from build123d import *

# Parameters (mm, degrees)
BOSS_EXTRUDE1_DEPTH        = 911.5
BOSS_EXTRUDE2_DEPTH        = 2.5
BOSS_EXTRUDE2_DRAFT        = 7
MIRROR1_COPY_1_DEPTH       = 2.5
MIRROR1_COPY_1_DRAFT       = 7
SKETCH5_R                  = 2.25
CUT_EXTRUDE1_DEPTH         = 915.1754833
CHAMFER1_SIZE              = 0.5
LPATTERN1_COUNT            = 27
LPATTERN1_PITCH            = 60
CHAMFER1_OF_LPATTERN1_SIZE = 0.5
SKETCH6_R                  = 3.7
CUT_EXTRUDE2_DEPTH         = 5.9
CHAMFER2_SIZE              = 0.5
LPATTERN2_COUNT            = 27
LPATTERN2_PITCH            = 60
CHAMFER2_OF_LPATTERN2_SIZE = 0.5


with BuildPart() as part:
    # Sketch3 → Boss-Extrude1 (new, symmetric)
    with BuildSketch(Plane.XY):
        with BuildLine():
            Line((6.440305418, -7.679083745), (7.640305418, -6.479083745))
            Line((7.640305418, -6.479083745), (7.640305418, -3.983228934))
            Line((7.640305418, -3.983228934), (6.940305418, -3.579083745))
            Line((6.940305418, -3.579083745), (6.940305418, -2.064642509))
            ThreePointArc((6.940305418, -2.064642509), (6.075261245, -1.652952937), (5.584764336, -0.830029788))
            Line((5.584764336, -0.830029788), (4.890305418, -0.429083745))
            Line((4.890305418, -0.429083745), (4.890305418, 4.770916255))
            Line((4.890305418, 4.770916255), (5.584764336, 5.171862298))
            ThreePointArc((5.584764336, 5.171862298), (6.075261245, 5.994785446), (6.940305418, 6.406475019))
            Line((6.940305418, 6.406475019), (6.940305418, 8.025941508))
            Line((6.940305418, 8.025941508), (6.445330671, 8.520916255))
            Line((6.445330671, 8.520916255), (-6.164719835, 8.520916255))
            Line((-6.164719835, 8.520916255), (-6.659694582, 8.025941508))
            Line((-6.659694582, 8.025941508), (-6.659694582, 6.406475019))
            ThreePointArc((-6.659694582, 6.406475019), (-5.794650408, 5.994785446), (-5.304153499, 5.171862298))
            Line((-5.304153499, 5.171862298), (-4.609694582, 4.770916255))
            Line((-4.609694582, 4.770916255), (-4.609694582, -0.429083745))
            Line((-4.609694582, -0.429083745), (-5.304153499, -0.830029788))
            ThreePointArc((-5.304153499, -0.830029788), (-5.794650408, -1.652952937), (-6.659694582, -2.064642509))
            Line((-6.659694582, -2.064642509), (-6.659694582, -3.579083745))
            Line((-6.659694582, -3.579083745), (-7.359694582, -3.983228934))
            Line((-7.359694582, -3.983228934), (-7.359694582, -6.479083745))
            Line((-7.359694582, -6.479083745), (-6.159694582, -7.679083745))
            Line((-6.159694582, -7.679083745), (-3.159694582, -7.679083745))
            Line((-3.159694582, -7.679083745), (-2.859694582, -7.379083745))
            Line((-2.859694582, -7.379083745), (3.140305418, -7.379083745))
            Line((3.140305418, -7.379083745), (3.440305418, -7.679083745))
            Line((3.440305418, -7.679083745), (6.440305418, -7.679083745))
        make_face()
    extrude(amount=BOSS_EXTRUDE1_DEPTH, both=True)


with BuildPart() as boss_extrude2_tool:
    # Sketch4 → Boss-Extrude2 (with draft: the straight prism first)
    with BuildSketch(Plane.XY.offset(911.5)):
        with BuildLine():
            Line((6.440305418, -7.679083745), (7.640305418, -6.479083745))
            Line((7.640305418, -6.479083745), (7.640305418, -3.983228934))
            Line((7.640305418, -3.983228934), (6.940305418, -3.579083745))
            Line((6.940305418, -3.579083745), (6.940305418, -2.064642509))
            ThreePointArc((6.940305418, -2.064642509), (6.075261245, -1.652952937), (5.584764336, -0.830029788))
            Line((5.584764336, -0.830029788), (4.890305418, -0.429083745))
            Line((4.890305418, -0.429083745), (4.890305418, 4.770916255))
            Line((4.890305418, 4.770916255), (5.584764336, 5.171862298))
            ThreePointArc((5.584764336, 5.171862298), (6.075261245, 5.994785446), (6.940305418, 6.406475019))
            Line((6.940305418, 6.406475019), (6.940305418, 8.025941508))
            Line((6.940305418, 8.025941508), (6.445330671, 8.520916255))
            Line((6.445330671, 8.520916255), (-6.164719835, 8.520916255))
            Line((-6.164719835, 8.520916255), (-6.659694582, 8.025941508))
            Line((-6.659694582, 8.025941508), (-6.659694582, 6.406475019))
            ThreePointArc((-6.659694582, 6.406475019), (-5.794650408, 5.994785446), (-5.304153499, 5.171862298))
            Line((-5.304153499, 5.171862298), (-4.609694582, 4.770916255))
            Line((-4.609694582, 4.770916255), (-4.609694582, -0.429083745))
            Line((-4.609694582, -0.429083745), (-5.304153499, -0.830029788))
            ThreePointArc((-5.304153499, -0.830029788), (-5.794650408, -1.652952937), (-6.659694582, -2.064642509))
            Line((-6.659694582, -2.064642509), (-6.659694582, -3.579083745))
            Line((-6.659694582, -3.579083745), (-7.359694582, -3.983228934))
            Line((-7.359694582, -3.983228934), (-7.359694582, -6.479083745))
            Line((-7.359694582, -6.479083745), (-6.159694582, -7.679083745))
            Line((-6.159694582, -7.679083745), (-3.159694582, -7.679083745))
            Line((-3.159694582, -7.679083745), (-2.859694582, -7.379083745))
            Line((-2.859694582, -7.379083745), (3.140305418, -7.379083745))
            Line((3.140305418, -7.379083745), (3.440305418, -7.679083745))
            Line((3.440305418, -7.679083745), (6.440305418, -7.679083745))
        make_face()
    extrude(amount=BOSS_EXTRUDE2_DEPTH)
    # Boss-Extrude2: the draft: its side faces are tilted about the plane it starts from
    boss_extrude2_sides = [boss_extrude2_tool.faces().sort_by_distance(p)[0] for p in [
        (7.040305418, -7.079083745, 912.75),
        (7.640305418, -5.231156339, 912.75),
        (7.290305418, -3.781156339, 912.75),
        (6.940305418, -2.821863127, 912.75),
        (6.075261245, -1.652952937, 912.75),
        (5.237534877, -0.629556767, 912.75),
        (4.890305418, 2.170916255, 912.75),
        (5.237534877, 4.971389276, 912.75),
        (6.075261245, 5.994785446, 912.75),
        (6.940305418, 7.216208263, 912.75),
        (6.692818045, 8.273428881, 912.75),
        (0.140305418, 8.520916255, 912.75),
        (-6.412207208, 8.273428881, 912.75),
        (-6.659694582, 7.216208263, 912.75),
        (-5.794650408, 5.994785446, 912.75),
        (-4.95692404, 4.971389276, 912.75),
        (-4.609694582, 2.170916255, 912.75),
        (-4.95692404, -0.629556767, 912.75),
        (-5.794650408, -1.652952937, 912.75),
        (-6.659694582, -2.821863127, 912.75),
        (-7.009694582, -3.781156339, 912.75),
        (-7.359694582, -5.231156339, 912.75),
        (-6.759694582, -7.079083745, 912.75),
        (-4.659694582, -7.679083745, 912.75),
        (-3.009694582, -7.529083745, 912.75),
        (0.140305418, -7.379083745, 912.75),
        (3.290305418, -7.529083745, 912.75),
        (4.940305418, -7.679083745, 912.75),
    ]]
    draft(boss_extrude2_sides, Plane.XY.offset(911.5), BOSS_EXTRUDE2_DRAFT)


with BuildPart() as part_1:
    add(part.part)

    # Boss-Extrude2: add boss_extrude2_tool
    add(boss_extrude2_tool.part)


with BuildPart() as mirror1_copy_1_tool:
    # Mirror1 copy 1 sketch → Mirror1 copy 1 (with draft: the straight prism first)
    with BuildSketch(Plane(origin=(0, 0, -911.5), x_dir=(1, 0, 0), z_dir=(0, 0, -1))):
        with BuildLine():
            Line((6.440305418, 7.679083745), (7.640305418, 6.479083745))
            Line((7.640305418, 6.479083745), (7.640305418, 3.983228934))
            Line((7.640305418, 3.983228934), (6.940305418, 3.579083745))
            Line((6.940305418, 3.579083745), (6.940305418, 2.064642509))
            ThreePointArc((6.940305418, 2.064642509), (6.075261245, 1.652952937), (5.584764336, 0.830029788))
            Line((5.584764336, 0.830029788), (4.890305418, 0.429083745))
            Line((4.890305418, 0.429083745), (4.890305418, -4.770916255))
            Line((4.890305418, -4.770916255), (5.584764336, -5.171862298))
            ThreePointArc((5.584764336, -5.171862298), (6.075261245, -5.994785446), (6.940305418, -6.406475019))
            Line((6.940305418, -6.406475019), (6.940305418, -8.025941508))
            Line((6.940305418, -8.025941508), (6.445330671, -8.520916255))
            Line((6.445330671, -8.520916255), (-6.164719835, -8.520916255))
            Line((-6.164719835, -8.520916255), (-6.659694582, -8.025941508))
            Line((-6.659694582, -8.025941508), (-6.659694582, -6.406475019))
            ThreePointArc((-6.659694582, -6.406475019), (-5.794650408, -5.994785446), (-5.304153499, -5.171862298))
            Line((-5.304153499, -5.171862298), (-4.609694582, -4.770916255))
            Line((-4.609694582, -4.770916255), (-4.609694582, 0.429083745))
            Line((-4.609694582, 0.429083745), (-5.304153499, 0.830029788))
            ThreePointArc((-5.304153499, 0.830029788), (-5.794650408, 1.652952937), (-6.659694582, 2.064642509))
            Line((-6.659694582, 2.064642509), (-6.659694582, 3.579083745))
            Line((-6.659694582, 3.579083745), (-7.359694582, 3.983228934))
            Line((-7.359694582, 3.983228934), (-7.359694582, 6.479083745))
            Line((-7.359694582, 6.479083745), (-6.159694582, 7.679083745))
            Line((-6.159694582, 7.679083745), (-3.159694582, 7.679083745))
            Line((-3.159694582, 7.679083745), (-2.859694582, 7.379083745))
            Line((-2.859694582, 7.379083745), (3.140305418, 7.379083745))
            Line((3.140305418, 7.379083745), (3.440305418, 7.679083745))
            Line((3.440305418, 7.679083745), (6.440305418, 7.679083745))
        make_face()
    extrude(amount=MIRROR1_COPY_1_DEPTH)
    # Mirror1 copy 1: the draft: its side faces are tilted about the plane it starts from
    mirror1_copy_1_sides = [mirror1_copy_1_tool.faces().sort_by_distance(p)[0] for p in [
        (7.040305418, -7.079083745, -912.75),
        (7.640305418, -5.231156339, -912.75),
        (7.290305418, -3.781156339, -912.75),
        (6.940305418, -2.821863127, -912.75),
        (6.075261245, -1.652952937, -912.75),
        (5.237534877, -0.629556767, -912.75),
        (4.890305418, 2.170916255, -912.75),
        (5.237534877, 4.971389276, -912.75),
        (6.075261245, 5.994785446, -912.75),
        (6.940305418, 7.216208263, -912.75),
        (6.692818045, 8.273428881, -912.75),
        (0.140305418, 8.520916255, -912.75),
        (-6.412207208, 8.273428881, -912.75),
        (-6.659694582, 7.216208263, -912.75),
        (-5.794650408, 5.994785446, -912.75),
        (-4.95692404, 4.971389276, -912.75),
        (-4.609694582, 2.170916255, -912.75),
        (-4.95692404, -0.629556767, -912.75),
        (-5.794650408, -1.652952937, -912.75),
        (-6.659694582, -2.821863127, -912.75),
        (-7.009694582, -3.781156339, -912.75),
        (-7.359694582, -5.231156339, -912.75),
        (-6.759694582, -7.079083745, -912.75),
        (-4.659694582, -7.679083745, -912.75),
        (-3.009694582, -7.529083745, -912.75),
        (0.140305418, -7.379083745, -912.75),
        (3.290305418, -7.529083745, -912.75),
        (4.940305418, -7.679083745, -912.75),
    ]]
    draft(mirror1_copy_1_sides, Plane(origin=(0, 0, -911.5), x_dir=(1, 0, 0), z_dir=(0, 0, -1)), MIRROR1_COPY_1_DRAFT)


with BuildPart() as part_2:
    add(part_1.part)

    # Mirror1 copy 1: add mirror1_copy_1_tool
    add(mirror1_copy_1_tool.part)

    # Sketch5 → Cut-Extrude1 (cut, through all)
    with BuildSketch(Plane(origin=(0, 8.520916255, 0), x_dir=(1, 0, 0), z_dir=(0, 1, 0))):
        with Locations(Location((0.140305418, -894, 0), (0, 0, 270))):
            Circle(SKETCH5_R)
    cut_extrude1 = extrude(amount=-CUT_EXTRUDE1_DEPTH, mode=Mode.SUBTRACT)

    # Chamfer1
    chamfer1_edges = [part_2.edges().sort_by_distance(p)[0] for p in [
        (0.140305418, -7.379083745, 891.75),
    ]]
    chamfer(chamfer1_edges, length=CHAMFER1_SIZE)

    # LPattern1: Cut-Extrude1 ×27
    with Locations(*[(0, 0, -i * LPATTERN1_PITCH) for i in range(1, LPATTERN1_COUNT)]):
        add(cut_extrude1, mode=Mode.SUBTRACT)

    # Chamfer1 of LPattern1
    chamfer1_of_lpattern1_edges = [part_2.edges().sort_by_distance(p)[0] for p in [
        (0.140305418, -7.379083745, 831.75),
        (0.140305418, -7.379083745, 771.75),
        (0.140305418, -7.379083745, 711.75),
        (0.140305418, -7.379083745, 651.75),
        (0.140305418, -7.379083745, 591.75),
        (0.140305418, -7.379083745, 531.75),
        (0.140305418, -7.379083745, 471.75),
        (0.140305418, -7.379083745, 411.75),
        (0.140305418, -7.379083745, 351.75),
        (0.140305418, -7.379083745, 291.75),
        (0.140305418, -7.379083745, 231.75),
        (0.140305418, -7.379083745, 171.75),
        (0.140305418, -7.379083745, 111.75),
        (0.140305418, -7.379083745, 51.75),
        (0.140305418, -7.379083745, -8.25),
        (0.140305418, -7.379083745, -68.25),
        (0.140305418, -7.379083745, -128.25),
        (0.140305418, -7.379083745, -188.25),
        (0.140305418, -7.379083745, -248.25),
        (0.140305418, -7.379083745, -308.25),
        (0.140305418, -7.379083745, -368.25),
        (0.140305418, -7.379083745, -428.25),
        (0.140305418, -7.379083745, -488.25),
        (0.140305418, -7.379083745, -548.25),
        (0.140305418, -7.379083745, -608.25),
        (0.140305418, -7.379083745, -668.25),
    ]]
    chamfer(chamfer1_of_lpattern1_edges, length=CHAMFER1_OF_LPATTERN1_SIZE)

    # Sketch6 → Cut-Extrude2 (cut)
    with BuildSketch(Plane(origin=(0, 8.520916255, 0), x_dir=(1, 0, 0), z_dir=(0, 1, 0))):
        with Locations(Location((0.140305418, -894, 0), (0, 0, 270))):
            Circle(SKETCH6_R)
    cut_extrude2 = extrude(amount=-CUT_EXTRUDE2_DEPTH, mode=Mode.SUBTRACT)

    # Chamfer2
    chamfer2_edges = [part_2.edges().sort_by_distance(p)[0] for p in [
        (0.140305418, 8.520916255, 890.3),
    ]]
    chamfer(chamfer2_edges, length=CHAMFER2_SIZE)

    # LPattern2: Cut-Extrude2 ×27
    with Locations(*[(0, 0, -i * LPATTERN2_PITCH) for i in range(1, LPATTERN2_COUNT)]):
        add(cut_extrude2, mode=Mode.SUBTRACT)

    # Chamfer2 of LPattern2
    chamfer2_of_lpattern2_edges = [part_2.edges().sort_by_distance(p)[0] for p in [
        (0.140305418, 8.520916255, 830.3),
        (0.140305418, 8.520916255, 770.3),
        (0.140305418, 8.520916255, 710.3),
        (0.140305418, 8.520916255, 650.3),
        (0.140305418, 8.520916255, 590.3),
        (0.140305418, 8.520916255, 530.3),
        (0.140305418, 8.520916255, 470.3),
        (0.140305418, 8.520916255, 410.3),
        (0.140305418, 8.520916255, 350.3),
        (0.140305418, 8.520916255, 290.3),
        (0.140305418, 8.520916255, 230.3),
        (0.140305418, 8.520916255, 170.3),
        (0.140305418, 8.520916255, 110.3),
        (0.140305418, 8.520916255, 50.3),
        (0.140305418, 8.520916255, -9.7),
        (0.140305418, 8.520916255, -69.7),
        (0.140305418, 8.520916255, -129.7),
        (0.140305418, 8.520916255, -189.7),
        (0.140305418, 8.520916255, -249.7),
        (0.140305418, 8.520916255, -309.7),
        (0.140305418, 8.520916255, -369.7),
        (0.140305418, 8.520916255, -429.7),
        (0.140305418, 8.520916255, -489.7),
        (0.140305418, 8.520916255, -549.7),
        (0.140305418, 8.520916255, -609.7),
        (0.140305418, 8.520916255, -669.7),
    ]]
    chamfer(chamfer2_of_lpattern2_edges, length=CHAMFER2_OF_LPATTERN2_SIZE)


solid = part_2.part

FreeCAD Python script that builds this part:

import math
import FreeCAD as App
import Part
import Sketcher
Q = App.Units.Quantity


def edges_at(feature, points):
    """Names of the edges that pass closest to the given points."""
    edges = feature.Shape.Edges
    near = lambda p: min(range(len(edges)), key=lambda i: edges[i].distToShape(Part.Vertex(*p))[0])
    return sorted({f"Edge{near(p) + 1}" for p in points})


def faces_at(feature, points):
    """Names of the faces that lie closest to the given points."""
    faces = feature.Shape.Faces
    near = lambda p: min(range(len(faces)), key=lambda i: faces[i].distToShape(Part.Vertex(*p))[0])
    return sorted({f"Face{near(p) + 1}" for p in points})

doc = App.newDocument("Part")
body = doc.addObject("PartDesign::Body", "Body")

sketch1 = body.newObject("Sketcher::SketchObject", "Sketch")
sketch1.AttachmentSupport = (doc.getObject("XY_Plane"), [""])
sketch1.MapMode = "FlatFace"
sketch1.addGeometry([
    Part.LineSegment(App.Vector(6.44, -7.68, 0), App.Vector(7.64, -6.48, 0)),
    Part.LineSegment(App.Vector(7.64, -6.48, 0), App.Vector(7.64, -3.98, 0)),
    Part.LineSegment(App.Vector(7.64, -3.98, 0), App.Vector(6.94, -3.58, 0)),
    Part.LineSegment(App.Vector(6.94, -3.58, 0), App.Vector(6.94, -2.06, 0)),
    Part.ArcOfCircle(Part.Circle(App.Vector(7.19, -0.43, 0), App.Vector(0, 0, 1), 1.65), math.radians(-166), math.radians(-99)),
    Part.LineSegment(App.Vector(5.58, -0.83, 0), App.Vector(4.89, -0.43, 0)),
    Part.LineSegment(App.Vector(4.89, -0.43, 0), App.Vector(4.89, 4.77, 0)),
    Part.LineSegment(App.Vector(4.89, 4.77, 0), App.Vector(5.58, 5.17, 0)),
    Part.ArcOfCircle(Part.Circle(App.Vector(7.19, 4.77, 0), App.Vector(0, 0, 1), 1.65), math.radians(99), math.radians(166)),
    Part.LineSegment(App.Vector(6.94, 6.41, 0), App.Vector(6.94, 8.03, 0)),
    Part.LineSegment(App.Vector(6.94, 8.03, 0), App.Vector(6.45, 8.52, 0)),
    Part.LineSegment(App.Vector(6.45, 8.52, 0), App.Vector(-6.16, 8.52, 0)),
    Part.LineSegment(App.Vector(-6.16, 8.52, 0), App.Vector(-6.66, 8.03, 0)),
    Part.LineSegment(App.Vector(-6.66, 8.03, 0), App.Vector(-6.66, 6.41, 0)),
    Part.ArcOfCircle(Part.Circle(App.Vector(-6.91, 4.77, 0), App.Vector(0, 0, 1), 1.65), math.radians(14), math.radians(81)),
    Part.LineSegment(App.Vector(-5.3, 5.17, 0), App.Vector(-4.61, 4.77, 0)),
    Part.LineSegment(App.Vector(-4.61, 4.77, 0), App.Vector(-4.61, -0.43, 0)),
    Part.LineSegment(App.Vector(-4.61, -0.43, 0), App.Vector(-5.3, -0.83, 0)),
    Part.ArcOfCircle(Part.Circle(App.Vector(-6.91, -0.43, 0), App.Vector(0, 0, 1), 1.65), math.radians(-81), math.radians(-14)),
    Part.LineSegment(App.Vector(-6.66, -2.06, 0), App.Vector(-6.66, -3.58, 0)),
    Part.LineSegment(App.Vector(-6.66, -3.58, 0), App.Vector(-7.36, -3.98, 0)),
    Part.LineSegment(App.Vector(-7.36, -3.98, 0), App.Vector(-7.36, -6.48, 0)),
    Part.LineSegment(App.Vector(-7.36, -6.48, 0), App.Vector(-6.16, -7.68, 0)),
    Part.LineSegment(App.Vector(-6.16, -7.68, 0), App.Vector(-3.16, -7.68, 0)),
    Part.LineSegment(App.Vector(-3.16, -7.68, 0), App.Vector(-2.86, -7.38, 0)),
    Part.LineSegment(App.Vector(-2.86, -7.38, 0), App.Vector(3.14, -7.38, 0)),
    Part.LineSegment(App.Vector(3.14, -7.38, 0), App.Vector(3.44, -7.68, 0)),
    Part.LineSegment(App.Vector(3.44, -7.68, 0), App.Vector(6.44, -7.68, 0)),
], False)
sketch1.addConstraint([
    Sketcher.Constraint("Coincident", 0, 2, 1, 1),
    Sketcher.Constraint("Coincident", 1, 2, 2, 1),
    Sketcher.Constraint("Coincident", 2, 2, 3, 1),
    Sketcher.Constraint("Coincident", 3, 2, 4, 2),
    Sketcher.Constraint("Coincident", 4, 1, 5, 1),
    Sketcher.Constraint("Coincident", 5, 2, 6, 1),
    Sketcher.Constraint("Coincident", 6, 2, 7, 1),
    Sketcher.Constraint("Coincident", 7, 2, 8, 2),
    Sketcher.Constraint("Coincident", 8, 1, 9, 1),
    Sketcher.Constraint("Coincident", 9, 2, 10, 1),
    Sketcher.Constraint("Coincident", 10, 2, 11, 1),
    Sketcher.Constraint("Coincident", 11, 2, 12, 1),
    Sketcher.Constraint("Coincident", 12, 2, 13, 1),
    Sketcher.Constraint("Coincident", 13, 2, 14, 2),
    Sketcher.Constraint("Coincident", 14, 1, 15, 1),
    Sketcher.Constraint("Coincident", 15, 2, 16, 1),
    Sketcher.Constraint("Coincident", 16, 2, 17, 1),
    Sketcher.Constraint("Coincident", 17, 2, 18, 2),
    Sketcher.Constraint("Coincident", 18, 1, 19, 1),
    Sketcher.Constraint("Coincident", 19, 2, 20, 1),
    Sketcher.Constraint("Coincident", 20, 2, 21, 1),
    Sketcher.Constraint("Coincident", 21, 2, 22, 1),
    Sketcher.Constraint("Coincident", 22, 2, 23, 1),
    Sketcher.Constraint("Coincident", 23, 2, 24, 1),
    Sketcher.Constraint("Coincident", 24, 2, 25, 1),
    Sketcher.Constraint("Coincident", 25, 2, 26, 1),
    Sketcher.Constraint("Coincident", 26, 2, 27, 1),
    Sketcher.Constraint("Coincident", 27, 2, 0, 1),
    Sketcher.Constraint("Vertical", 1),
    Sketcher.Constraint("Vertical", 3),
    Sketcher.Constraint("Vertical", 6),
    Sketcher.Constraint("Vertical", 9),
    Sketcher.Constraint("Horizontal", 11),
    Sketcher.Constraint("Vertical", 13),
    Sketcher.Constraint("Vertical", 16),
    Sketcher.Constraint("Vertical", 19),
    Sketcher.Constraint("Vertical", 21),
    Sketcher.Constraint("Horizontal", 23),
    Sketcher.Constraint("Horizontal", 25),
    Sketcher.Constraint("Horizontal", 27),
    Sketcher.Constraint("Equal", 4, 8),
    Sketcher.Constraint("Equal", 8, 14),
    Sketcher.Constraint("Equal", 14, 18),
    Sketcher.Constraint("Parallel", 2, 5),
    Sketcher.Constraint("Perpendicular", 0, 10),
    Sketcher.Constraint("Perpendicular", 10, 12),
    Sketcher.Constraint("Parallel", 5, 15),
    Sketcher.Constraint("Parallel", 7, 17),
    Sketcher.Constraint("Parallel", 17, 20),
    Sketcher.Constraint("Perpendicular", 12, 22),
    Sketcher.Constraint("Perpendicular", 22, 24),
    Sketcher.Constraint("Perpendicular", 24, 26),
    Sketcher.Constraint("Horizontal", 8, 3, 14, 3),
    Sketcher.Constraint("Horizontal", 4, 3, 18, 3),
    Sketcher.Constraint("Horizontal", 9, 2, 12, 2),
    Sketcher.Constraint("Horizontal", 8, 1, 13, 2),
    Sketcher.Constraint("Horizontal", 7, 2, 14, 1),
    Sketcher.Constraint("Horizontal", 6, 2, 15, 2),
    Sketcher.Constraint("Horizontal", 5, 2, 16, 2),
    Sketcher.Constraint("Horizontal", 4, 1, 17, 2),
    Sketcher.Constraint("Horizontal", 3, 2, 18, 1),
    Sketcher.Constraint("Horizontal", 2, 2, 19, 2),
    Sketcher.Constraint("Horizontal", 1, 2, 20, 2),
    Sketcher.Constraint("Horizontal", 0, 2, 21, 2),
    Sketcher.Constraint("Horizontal", 23, 2, 26, 2),
    Sketcher.Constraint("Vertical", 4, 3, 8, 3),
    Sketcher.Constraint("Vertical", 14, 3, 18, 3),
    Sketcher.Constraint("Vertical", 4, 1, 7, 2),
    Sketcher.Constraint("Vertical", 3, 2, 8, 1),
    Sketcher.Constraint("Equal", 23, 27),
    Sketcher.Constraint("Equal", 10, 12),
    Sketcher.Constraint("DistanceX", 23, 1, 23, 2, 3.0),
    Sketcher.Constraint("DistanceX", 25, 1, 25, 2, 6.0),
    Sketcher.Constraint("Angle", 2, Q("150 deg")),
    Sketcher.Constraint("Radius", 4, 1.65),
    Sketcher.Constraint("DistanceY", 6, 1, 6, 2, 5.2),
    Sketcher.Constraint("Distance", 10, 0.7),
    Sketcher.Constraint("DistanceX", 2, 2, 1, 2, 0.7),
    Sketcher.Constraint("DistanceY", 0, 2, 2, 2, 2.9),
    Sketcher.Constraint("DistanceX", 21, 2, 22, 2, 1.2),
    Sketcher.Constraint("DistanceX", 23, 2, 24, 2, 0.3),
    Sketcher.Constraint("DistanceX", 5, 2, 3, 2, 2.05),
    Sketcher.Constraint("DistanceY", 2, 2, 5, 2, 3.15),
    Sketcher.Constraint("DistanceY", 6, 2, 10, 2, 3.75),
    Sketcher.Constraint("DistanceY", 4, 3, 8, 3, 5.208),
    Sketcher.Constraint("DistanceX", 14, 3, 8, 3, 14.092),
    Sketcher.Constraint("DistanceY", 1, 2, -1, 1, 3.983229),
    Sketcher.Constraint("DistanceX", -1, 1, 10, 2, 6.445331),
])
pad1 = body.newObject("PartDesign::Pad", "Pad")
pad1.Profile = sketch1
pad1.Length = 1823
pad1.Midplane = True
body2 = doc.addObject("PartDesign::Body", "Body001")

sketch2 = body2.newObject("Sketcher::SketchObject", "Sketch001")
sketch2.AttachmentSupport = (doc.getObject("XY_Plane001"), [""])
sketch2.MapMode = "FlatFace"
sketch2.AttachmentOffset = App.Placement(App.Vector(0, 0, 911.5), App.Rotation())
sketch2.addGeometry([
    Part.LineSegment(App.Vector(6.44, -7.68, 0), App.Vector(7.64, -6.48, 0)),
    Part.LineSegment(App.Vector(7.64, -6.48, 0), App.Vector(7.64, -3.98, 0)),
    Part.LineSegment(App.Vector(7.64, -3.98, 0), App.Vector(6.94, -3.58, 0)),
    Part.LineSegment(App.Vector(6.94, -3.58, 0), App.Vector(6.94, -2.06, 0)),
    Part.ArcOfCircle(Part.Circle(App.Vector(7.19, -0.43, 0), App.Vector(0, 0, 1), 1.65), math.radians(-166), math.radians(-99)),
    Part.LineSegment(App.Vector(5.58, -0.83, 0), App.Vector(4.89, -0.43, 0)),
    Part.LineSegment(App.Vector(4.89, -0.43, 0), App.Vector(4.89, 4.77, 0)),
    Part.LineSegment(App.Vector(4.89, 4.77, 0), App.Vector(5.58, 5.17, 0)),
    Part.ArcOfCircle(Part.Circle(App.Vector(7.19, 4.77, 0), App.Vector(0, 0, 1), 1.65), math.radians(99), math.radians(166)),
    Part.LineSegment(App.Vector(6.94, 6.41, 0), App.Vector(6.94, 8.03, 0)),
    Part.LineSegment(App.Vector(6.94, 8.03, 0), App.Vector(6.45, 8.52, 0)),
    Part.LineSegment(App.Vector(6.45, 8.52, 0), App.Vector(-6.16, 8.52, 0)),
    Part.LineSegment(App.Vector(-6.16, 8.52, 0), App.Vector(-6.66, 8.03, 0)),
    Part.LineSegment(App.Vector(-6.66, 8.03, 0), App.Vector(-6.66, 6.41, 0)),
    Part.ArcOfCircle(Part.Circle(App.Vector(-6.91, 4.77, 0), App.Vector(0, 0, 1), 1.65), math.radians(14), math.radians(81)),
    Part.LineSegment(App.Vector(-5.3, 5.17, 0), App.Vector(-4.61, 4.77, 0)),
    Part.LineSegment(App.Vector(-4.61, 4.77, 0), App.Vector(-4.61, -0.43, 0)),
    Part.LineSegment(App.Vector(-4.61, -0.43, 0), App.Vector(-5.3, -0.83, 0)),
    Part.ArcOfCircle(Part.Circle(App.Vector(-6.91, -0.43, 0), App.Vector(0, 0, 1), 1.65), math.radians(-81), math.radians(-14)),
    Part.LineSegment(App.Vector(-6.66, -2.06, 0), App.Vector(-6.66, -3.58, 0)),
    Part.LineSegment(App.Vector(-6.66, -3.58, 0), App.Vector(-7.36, -3.98, 0)),
    Part.LineSegment(App.Vector(-7.36, -3.98, 0), App.Vector(-7.36, -6.48, 0)),
    Part.LineSegment(App.Vector(-7.36, -6.48, 0), App.Vector(-6.16, -7.68, 0)),
    Part.LineSegment(App.Vector(-6.16, -7.68, 0), App.Vector(-3.16, -7.68, 0)),
    Part.LineSegment(App.Vector(-3.16, -7.68, 0), App.Vector(-2.86, -7.38, 0)),
    Part.LineSegment(App.Vector(-2.86, -7.38, 0), App.Vector(3.14, -7.38, 0)),
    Part.LineSegment(App.Vector(3.14, -7.38, 0), App.Vector(3.44, -7.68, 0)),
    Part.LineSegment(App.Vector(3.44, -7.68, 0), App.Vector(6.44, -7.68, 0)),
], False)
sketch2.addConstraint([
    Sketcher.Constraint("Coincident", 0, 2, 1, 1),
    Sketcher.Constraint("Coincident", 1, 2, 2, 1),
    Sketcher.Constraint("Coincident", 2, 2, 3, 1),
    Sketcher.Constraint("Coincident", 3, 2, 4, 2),
    Sketcher.Constraint("Coincident", 4, 1, 5, 1),
    Sketcher.Constraint("Coincident", 5, 2, 6, 1),
    Sketcher.Constraint("Coincident", 6, 2, 7, 1),
    Sketcher.Constraint("Coincident", 7, 2, 8, 2),
    Sketcher.Constraint("Coincident", 8, 1, 9, 1),
    Sketcher.Constraint("Coincident", 9, 2, 10, 1),
    Sketcher.Constraint("Coincident", 10, 2, 11, 1),
    Sketcher.Constraint("Coincident", 11, 2, 12, 1),
    Sketcher.Constraint("Coincident", 12, 2, 13, 1),
    Sketcher.Constraint("Coincident", 13, 2, 14, 2),
    Sketcher.Constraint("Coincident", 14, 1, 15, 1),
    Sketcher.Constraint("Coincident", 15, 2, 16, 1),
    Sketcher.Constraint("Coincident", 16, 2, 17, 1),
    Sketcher.Constraint("Coincident", 17, 2, 18, 2),
    Sketcher.Constraint("Coincident", 18, 1, 19, 1),
    Sketcher.Constraint("Coincident", 19, 2, 20, 1),
    Sketcher.Constraint("Coincident", 20, 2, 21, 1),
    Sketcher.Constraint("Coincident", 21, 2, 22, 1),
    Sketcher.Constraint("Coincident", 22, 2, 23, 1),
    Sketcher.Constraint("Coincident", 23, 2, 24, 1),
    Sketcher.Constraint("Coincident", 24, 2, 25, 1),
    Sketcher.Constraint("Coincident", 25, 2, 26, 1),
    Sketcher.Constraint("Coincident", 26, 2, 27, 1),
    Sketcher.Constraint("Coincident", 27, 2, 0, 1),
    Sketcher.Constraint("Vertical", 1),
    Sketcher.Constraint("Vertical", 3),
    Sketcher.Constraint("Vertical", 6),
    Sketcher.Constraint("Vertical", 9),
    Sketcher.Constraint("Horizontal", 11),
    Sketcher.Constraint("Vertical", 13),
    Sketcher.Constraint("Vertical", 16),
    Sketcher.Constraint("Vertical", 19),
    Sketcher.Constraint("Vertical", 21),
    Sketcher.Constraint("Horizontal", 23),
    Sketcher.Constraint("Horizontal", 25),
    Sketcher.Constraint("Horizontal", 27),
    Sketcher.Constraint("Equal", 4, 8),
    Sketcher.Constraint("Equal", 8, 14),
    Sketcher.Constraint("Equal", 14, 18),
    Sketcher.Constraint("Parallel", 2, 5),
    Sketcher.Constraint("Perpendicular", 0, 10),
    Sketcher.Constraint("Perpendicular", 10, 12),
    Sketcher.Constraint("Parallel", 5, 15),
    Sketcher.Constraint("Parallel", 7, 17),
    Sketcher.Constraint("Parallel", 17, 20),
    Sketcher.Constraint("Perpendicular", 12, 22),
    Sketcher.Constraint("Perpendicular", 22, 24),
    Sketcher.Constraint("Perpendicular", 24, 26),
    Sketcher.Constraint("Horizontal", 8, 3, 14, 3),
    Sketcher.Constraint("Horizontal", 4, 3, 18, 3),
    Sketcher.Constraint("Horizontal", 9, 2, 12, 2),
    Sketcher.Constraint("Horizontal", 8, 1, 13, 2),
    Sketcher.Constraint("Horizontal", 7, 2, 14, 1),
    Sketcher.Constraint("Horizontal", 6, 2, 15, 2),
    Sketcher.Constraint("Horizontal", 5, 2, 16, 2),
    Sketcher.Constraint("Horizontal", 4, 1, 17, 2),
    Sketcher.Constraint("Horizontal", 3, 2, 18, 1),
    Sketcher.Constraint("Horizontal", 2, 2, 19, 2),
    Sketcher.Constraint("Horizontal", 1, 2, 20, 2),
    Sketcher.Constraint("Horizontal", 0, 2, 21, 2),
    Sketcher.Constraint("Horizontal", 23, 2, 26, 2),
    Sketcher.Constraint("Vertical", 4, 3, 8, 3),
    Sketcher.Constraint("Vertical", 14, 3, 18, 3),
    Sketcher.Constraint("Vertical", 4, 1, 7, 2),
    Sketcher.Constraint("Vertical", 3, 2, 8, 1),
    Sketcher.Constraint("Equal", 23, 27),
    Sketcher.Constraint("Equal", 10, 12),
    Sketcher.Constraint("DistanceX", 23, 1, 23, 2, 3.0),
    Sketcher.Constraint("DistanceX", 25, 1, 25, 2, 6.0),
    Sketcher.Constraint("Angle", 2, Q("150 deg")),
    Sketcher.Constraint("Radius", 4, 1.65),
    Sketcher.Constraint("DistanceY", 6, 1, 6, 2, 5.2),
    Sketcher.Constraint("Distance", 10, 0.7),
    Sketcher.Constraint("DistanceX", 2, 2, 1, 2, 0.7),
    Sketcher.Constraint("DistanceY", 0, 2, 2, 2, 2.9),
    Sketcher.Constraint("DistanceX", 21, 2, 22, 2, 1.2),
    Sketcher.Constraint("DistanceX", 23, 2, 24, 2, 0.3),
    Sketcher.Constraint("DistanceX", 5, 2, 3, 2, 2.05),
    Sketcher.Constraint("DistanceY", 2, 2, 5, 2, 3.15),
    Sketcher.Constraint("DistanceY", 6, 2, 10, 2, 3.75),
    Sketcher.Constraint("DistanceY", 4, 3, 8, 3, 5.208),
    Sketcher.Constraint("DistanceX", 14, 3, 8, 3, 14.092),
    Sketcher.Constraint("DistanceY", 1, 2, -1, 1, 3.983229),
    Sketcher.Constraint("DistanceX", -1, 1, 10, 2, 6.445331),
])
pad2 = body2.newObject("PartDesign::Pad", "Pad001")
pad2.Profile = sketch2
pad2.Length = 2.5
doc.recompute()

datumplane = body2.newObject("PartDesign::Plane", "DatumPlane")
datumplane.AttachmentSupport = (doc.getObject("XY_Plane001"), [""])
datumplane.MapMode = "FlatFace"
datumplane.AttachmentOffset = App.Placement(App.Vector(0, 0, 911.5), App.Rotation())
draft = body2.newObject("PartDesign::Draft", "Draft")
draft.Base = (pad2, faces_at(pad2, [
    (7.04, -7.079, 912.75),
    (7.64, -5.231, 912.75),
    (7.29, -3.781, 912.75),
    (6.94, -2.822, 912.75),
    (6.075, -1.653, 912.75),
    (5.238, -0.63, 912.75),
    (4.89, 2.171, 912.75),
    (5.238, 4.971, 912.75),
    (6.075, 5.995, 912.75),
    (6.94, 7.216, 912.75),
    (6.693, 8.273, 912.75),
    (0.14, 8.521, 912.75),
    (-6.412, 8.273, 912.75),
    (-6.66, 7.216, 912.75),
    (-5.795, 5.995, 912.75),
    (-4.957, 4.971, 912.75),
    (-4.61, 2.171, 912.75),
    (-4.957, -0.63, 912.75),
    (-5.795, -1.653, 912.75),
    (-6.66, -2.822, 912.75),
    (-7.01, -3.781, 912.75),
    (-7.36, -5.231, 912.75),
    (-6.76, -7.079, 912.75),
    (-4.66, -7.679, 912.75),
    (-3.01, -7.529, 912.75),
    (0.14, -7.379, 912.75),
    (3.29, -7.529, 912.75),
    (4.94, -7.679, 912.75),
]))
draft.NeutralPlane = (datumplane, [""])
draft.Angle = 7
draft.Reversed = False
doc.recompute()

boolean = body.newObject("PartDesign::Boolean", "Boolean")
boolean.Type = "Fuse"
boolean.addObjects([body2])
body3 = doc.addObject("PartDesign::Body", "Body002")

sketch3 = body3.newObject("Sketcher::SketchObject", "Sketch002")
sketch3.AttachmentSupport = (doc.getObject("XY_Plane002"), [""])
sketch3.MapMode = "FlatFace"
sketch3.AttachmentOffset = App.Placement(App.Vector(0, 0, -911.5), App.Rotation())
sketch3.addGeometry([
    Part.LineSegment(App.Vector(7.64, -6.48, 0), App.Vector(6.44, -7.68, 0)),
    Part.LineSegment(App.Vector(6.44, -7.68, 0), App.Vector(3.44, -7.68, 0)),
    Part.LineSegment(App.Vector(3.44, -7.68, 0), App.Vector(3.14, -7.38, 0)),
    Part.LineSegment(App.Vector(3.14, -7.38, 0), App.Vector(-2.86, -7.38, 0)),
    Part.LineSegment(App.Vector(-2.86, -7.38, 0), App.Vector(-3.16, -7.68, 0)),
    Part.LineSegment(App.Vector(-3.16, -7.68, 0), App.Vector(-6.16, -7.68, 0)),
    Part.LineSegment(App.Vector(-6.16, -7.68, 0), App.Vector(-7.36, -6.48, 0)),
    Part.LineSegment(App.Vector(-7.36, -6.48, 0), App.Vector(-7.36, -3.98, 0)),
    Part.LineSegment(App.Vector(-7.36, -3.98, 0), App.Vector(-6.66, -3.58, 0)),
    Part.LineSegment(App.Vector(-6.66, -3.58, 0), App.Vector(-6.66, -2.06, 0)),
    Part.ArcOfCircle(Part.Circle(App.Vector(-6.91, -0.43, 0), App.Vector(0, 0, 1), 1.65), math.radians(-81), math.radians(-14)),
    Part.LineSegment(App.Vector(-5.3, -0.83, 0), App.Vector(-4.61, -0.43, 0)),
    Part.LineSegment(App.Vector(-4.61, -0.43, 0), App.Vector(-4.61, 4.77, 0)),
    Part.LineSegment(App.Vector(-4.61, 4.77, 0), App.Vector(-5.3, 5.17, 0)),
    Part.ArcOfCircle(Part.Circle(App.Vector(-6.91, 4.77, 0), App.Vector(0, 0, 1), 1.65), math.radians(14), math.radians(81)),
    Part.LineSegment(App.Vector(-6.66, 6.41, 0), App.Vector(-6.66, 8.03, 0)),
    Part.LineSegment(App.Vector(-6.66, 8.03, 0), App.Vector(-6.16, 8.52, 0)),
    Part.LineSegment(App.Vector(-6.16, 8.52, 0), App.Vector(6.45, 8.52, 0)),
    Part.LineSegment(App.Vector(6.45, 8.52, 0), App.Vector(6.94, 8.03, 0)),
    Part.LineSegment(App.Vector(6.94, 8.03, 0), App.Vector(6.94, 6.41, 0)),
    Part.ArcOfCircle(Part.Circle(App.Vector(7.19, 4.77, 0), App.Vector(0, 0, 1), 1.65), math.radians(99), math.radians(166)),
    Part.LineSegment(App.Vector(5.58, 5.17, 0), App.Vector(4.89, 4.77, 0)),
    Part.LineSegment(App.Vector(4.89, 4.77, 0), App.Vector(4.89, -0.43, 0)),
    Part.LineSegment(App.Vector(4.89, -0.43, 0), App.Vector(5.58, -0.83, 0)),
    Part.ArcOfCircle(Part.Circle(App.Vector(7.19, -0.43, 0), App.Vector(0, 0, 1), 1.65), math.radians(-166), math.radians(-99)),
    Part.LineSegment(App.Vector(6.94, -2.06, 0), App.Vector(6.94, -3.58, 0)),
    Part.LineSegment(App.Vector(6.94, -3.58, 0), App.Vector(7.64, -3.98, 0)),
    Part.LineSegment(App.Vector(7.64, -3.98, 0), App.Vector(7.64, -6.48, 0)),
], False)
sketch3.addConstraint([
    Sketcher.Constraint("Coincident", 0, 2, 1, 1),
    Sketcher.Constraint("Coincident", 1, 2, 2, 1),
    Sketcher.Constraint("Coincident", 2, 2, 3, 1),
    Sketcher.Constraint("Coincident", 3, 2, 4, 1),
    Sketcher.Constraint("Coincident", 4, 2, 5, 1),
    Sketcher.Constraint("Coincident", 5, 2, 6, 1),
    Sketcher.Constraint("Coincident", 6, 2, 7, 1),
    Sketcher.Constraint("Coincident", 7, 2, 8, 1),
    Sketcher.Constraint("Coincident", 8, 2, 9, 1),
    Sketcher.Constraint("Coincident", 9, 2, 10, 1),
    Sketcher.Constraint("Coincident", 10, 2, 11, 1),
    Sketcher.Constraint("Coincident", 11, 2, 12, 1),
    Sketcher.Constraint("Coincident", 12, 2, 13, 1),
    Sketcher.Constraint("Coincident", 13, 2, 14, 1),
    Sketcher.Constraint("Coincident", 14, 2, 15, 1),
    Sketcher.Constraint("Coincident", 15, 2, 16, 1),
    Sketcher.Constraint("Coincident", 16, 2, 17, 1),
    Sketcher.Constraint("Coincident", 17, 2, 18, 1),
    Sketcher.Constraint("Coincident", 18, 2, 19, 1),
    Sketcher.Constraint("Coincident", 19, 2, 20, 1),
    Sketcher.Constraint("Coincident", 20, 2, 21, 1),
    Sketcher.Constraint("Coincident", 21, 2, 22, 1),
    Sketcher.Constraint("Coincident", 22, 2, 23, 1),
    Sketcher.Constraint("Coincident", 23, 2, 24, 1),
    Sketcher.Constraint("Coincident", 24, 2, 25, 1),
    Sketcher.Constraint("Coincident", 25, 2, 26, 1),
    Sketcher.Constraint("Coincident", 26, 2, 27, 1),
    Sketcher.Constraint("Coincident", 27, 2, 0, 1),
    Sketcher.Constraint("Horizontal", 1),
    Sketcher.Constraint("Horizontal", 3),
    Sketcher.Constraint("Horizontal", 5),
    Sketcher.Constraint("Vertical", 7),
    Sketcher.Constraint("Vertical", 9),
    Sketcher.Constraint("Vertical", 12),
    Sketcher.Constraint("Vertical", 15),
    Sketcher.Constraint("Horizontal", 17),
    Sketcher.Constraint("Vertical", 19),
    Sketcher.Constraint("Vertical", 22),
    Sketcher.Constraint("Vertical", 25),
    Sketcher.Constraint("Vertical", 27),
    Sketcher.Constraint("Equal", 10, 14),
    Sketcher.Constraint("Equal", 14, 20),
    Sketcher.Constraint("Equal", 20, 24),
    Sketcher.Constraint("Perpendicular", 0, 2),
    Sketcher.Constraint("Perpendicular", 2, 4),
    Sketcher.Constraint("Perpendicular", 4, 6),
    Sketcher.Constraint("Parallel", 8, 11),
    Sketcher.Constraint("Perpendicular", 6, 16),
    Sketcher.Constraint("Perpendicular", 16, 18),
    Sketcher.Constraint("Parallel", 11, 21),
    Sketcher.Constraint("Parallel", 13, 23),
    Sketcher.Constraint("Parallel", 23, 26),
    Sketcher.Constraint("Horizontal", 14, 3, 20, 3),
    Sketcher.Constraint("Horizontal", 10, 3, 24, 3),
    Sketcher.Constraint("Horizontal", 1, 2, 4, 2),
    Sketcher.Constraint("Horizontal", 15, 2, 18, 2),
    Sketcher.Constraint("Horizontal", 14, 2, 19, 2),
    Sketcher.Constraint("Horizontal", 13, 2, 20, 2),
    Sketcher.Constraint("Horizontal", 12, 2, 21, 2),
    Sketcher.Constraint("Horizontal", 11, 2, 22, 2),
    Sketcher.Constraint("Horizontal", 10, 2, 23, 2),
    Sketcher.Constraint("Horizontal", 9, 2, 24, 2),
    Sketcher.Constraint("Horizontal", 8, 2, 25, 2),
    Sketcher.Constraint("Horizontal", 7, 2, 26, 2),
    Sketcher.Constraint("Horizontal", 6, 2, 27, 2),
    Sketcher.Constraint("Vertical", 10, 3, 14, 3),
    Sketcher.Constraint("Vertical", 20, 3, 24, 3),
    Sketcher.Constraint("Vertical", 10, 2, 13, 2),
    Sketcher.Constraint("Vertical", 9, 2, 14, 2),
    Sketcher.Constraint("Equal", 1, 5),
    Sketcher.Constraint("Equal", 2, 4),
    Sketcher.Constraint("DistanceX", 1, 2, 1, 1, 3.0),
    Sketcher.Constraint("DistanceX", 3, 2, 3, 1, 6.0),
    Sketcher.Constraint("Angle", 8, Q("30 deg")),
    Sketcher.Constraint("Radius", 10, 1.65),
    Sketcher.Constraint("DistanceY", 12, 1, 12, 2, 5.2),
    Sketcher.Constraint("Distance", 16, 0.7),
    Sketcher.Constraint("DistanceX", 2, 2, 1, 2, 0.3),
    Sketcher.Constraint("DistanceX", 6, 2, 5, 2, 1.2),
    Sketcher.Constraint("DistanceX", 7, 2, 8, 2, 0.7),
    Sketcher.Constraint("DistanceY", 6, 2, 8, 2, 2.9),
    Sketcher.Constraint("DistanceX", 9, 2, 11, 2, 2.05),
    Sketcher.Constraint("DistanceY", 8, 2, 11, 2, 3.15),
    Sketcher.Constraint("DistanceY", 12, 2, 16, 2, 3.75),
    Sketcher.Constraint("DistanceY", 10, 3, 14, 3, 5.208),
    Sketcher.Constraint("DistanceX", 14, 3, 20, 3, 14.092),
    Sketcher.Constraint("DistanceY", 7, 2, -1, 1, 3.983229),
    Sketcher.Constraint("DistanceX", 16, 2, -1, 1, 6.16472),
])
pad3 = body3.newObject("PartDesign::Pad", "Pad002")
pad3.Profile = sketch3
pad3.Length = 2.5
pad3.Reversed = True
doc.recompute()

datumplane2 = body3.newObject("PartDesign::Plane", "DatumPlane001")
datumplane2.AttachmentSupport = (doc.getObject("XY_Plane002"), [""])
datumplane2.MapMode = "FlatFace"
datumplane2.AttachmentOffset = App.Placement(App.Vector(0, 0, -911.5), App.Rotation())
draft2 = body3.newObject("PartDesign::Draft", "Draft001")
draft2.Base = (pad3, faces_at(pad3, [
    (7.04, -7.079, -912.75),
    (7.64, -5.231, -912.75),
    (7.29, -3.781, -912.75),
    (6.94, -2.822, -912.75),
    (6.075, -1.653, -912.75),
    (5.238, -0.63, -912.75),
    (4.89, 2.171, -912.75),
    (5.238, 4.971, -912.75),
    (6.075, 5.995, -912.75),
    (6.94, 7.216, -912.75),
    (6.693, 8.273, -912.75),
    (0.14, 8.521, -912.75),
    (-6.412, 8.273, -912.75),
    (-6.66, 7.216, -912.75),
    (-5.795, 5.995, -912.75),
    (-4.957, 4.971, -912.75),
    (-4.61, 2.171, -912.75),
    (-4.957, -0.63, -912.75),
    (-5.795, -1.653, -912.75),
    (-6.66, -2.822, -912.75),
    (-7.01, -3.781, -912.75),
    (-7.36, -5.231, -912.75),
    (-6.76, -7.079, -912.75),
    (-4.66, -7.679, -912.75),
    (-3.01, -7.529, -912.75),
    (0.14, -7.379, -912.75),
    (3.29, -7.529, -912.75),
    (4.94, -7.679, -912.75),
]))
draft2.NeutralPlane = (datumplane2, [""])
draft2.Angle = 7
draft2.Reversed = True
doc.recompute()

boolean2 = body.newObject("PartDesign::Boolean", "Boolean001")
boolean2.Type = "Fuse"
boolean2.addObjects([body3])

sketch4 = body.newObject("Sketcher::SketchObject", "Sketch003")
sketch4.AttachmentSupport = (doc.getObject("XZ_Plane"), [""])
sketch4.MapMode = "FlatFace"
sketch4.AttachmentOffset = App.Placement(App.Vector(0, 0, -8.520916), App.Rotation())
sketch4.addGeometry(Part.Circle(App.Vector(0.1, 894, 0), App.Vector(0, 0, 1), 2.2), False)
sketch4.addConstraint([
    Sketcher.Constraint("Diameter", 0, 4.5),
    Sketcher.Constraint("DistanceY", -1, 1, 0, 3, 894.0),
    Sketcher.Constraint("DistanceX", -1, 1, 0, 3, 0.140305),
])
pocket1 = body.newObject("PartDesign::Pocket", "Pocket")
pocket1.Profile = sketch4
pocket1.Type = "ThroughAll"
pocket1.Reversed = True
doc.recompute()

chamfer = body.newObject("PartDesign::Chamfer", "Chamfer")
chamfer.Base = (pocket1, edges_at(pocket1, [(0.14, -7.379, 891.75)]))
chamfer.Size = 0.5
doc.recompute()

linearpattern = body.newObject("PartDesign::LinearPattern", "LinearPattern")
linearpattern.Originals = [pocket1]
linearpattern.Direction = (doc.getObject("Z_Axis"), [""])
linearpattern.Mode = "offset"
linearpattern.Offset = 60
linearpattern.Occurrences = 27
linearpattern.Reversed = True
body.Tip = linearpattern
doc.recompute()

chamfer2 = body.newObject("PartDesign::Chamfer", "Chamfer001")
chamfer2.Base = (linearpattern, edges_at(linearpattern, [
    (0.14, -7.379, 831.75),
    (0.14, -7.379, 771.75),
    (0.14, -7.379, 711.75),
    (0.14, -7.379, 651.75),
    (0.14, -7.379, 591.75),
    (0.14, -7.379, 531.75),
    (0.14, -7.379, 471.75),
    (0.14, -7.379, 411.75),
    (0.14, -7.379, 351.75),
    (0.14, -7.379, 291.75),
    (0.14, -7.379, 231.75),
    (0.14, -7.379, 171.75),
    (0.14, -7.379, 111.75),
    (0.14, -7.379, 51.75),
    (0.14, -7.379, -8.25),
    (0.14, -7.379, -68.25),
    (0.14, -7.379, -128.25),
    (0.14, -7.379, -188.25),
    (0.14, -7.379, -248.25),
    (0.14, -7.379, -308.25),
    (0.14, -7.379, -368.25),
    (0.14, -7.379, -428.25),
    (0.14, -7.379, -488.25),
    (0.14, -7.379, -548.25),
    (0.14, -7.379, -608.25),
    (0.14, -7.379, -668.25),
]))
chamfer2.Size = 0.5

sketch5 = body.newObject("Sketcher::SketchObject", "Sketch004")
sketch5.AttachmentSupport = (doc.getObject("XZ_Plane"), [""])
sketch5.MapMode = "FlatFace"
sketch5.AttachmentOffset = App.Placement(App.Vector(0, 0, -8.520916), App.Rotation())
sketch5.addGeometry(Part.Circle(App.Vector(0.1, 894, 0), App.Vector(0, 0, 1), 3.7), False)
sketch5.addConstraint([
    Sketcher.Constraint("Diameter", 0, 7.4),
    Sketcher.Constraint("DistanceY", -1, 1, 0, 3, 894.0),
    Sketcher.Constraint("DistanceX", -1, 1, 0, 3, 0.140305),
])
pocket2 = body.newObject("PartDesign::Pocket", "Pocket001")
pocket2.Profile = sketch5
pocket2.Length = 5.9
pocket2.Reversed = True
doc.recompute()

chamfer3 = body.newObject("PartDesign::Chamfer", "Chamfer002")
chamfer3.Base = (pocket2, edges_at(pocket2, [(0.14, 8.521, 890.3)]))
chamfer3.Size = 0.5
doc.recompute()

linearpattern2 = body.newObject("PartDesign::LinearPattern", "LinearPattern001")
linearpattern2.Originals = [pocket2]
linearpattern2.Direction = (doc.getObject("Z_Axis"), [""])
linearpattern2.Mode = "offset"
linearpattern2.Offset = 60
linearpattern2.Occurrences = 27
linearpattern2.Reversed = True
body.Tip = linearpattern2
doc.recompute()

chamfer4 = body.newObject("PartDesign::Chamfer", "Chamfer003")
chamfer4.Base = (linearpattern2, edges_at(linearpattern2, [
    (0.14, 8.521, 830.3),
    (0.14, 8.521, 770.3),
    (0.14, 8.521, 710.3),
    (0.14, 8.521, 650.3),
    (0.14, 8.521, 590.3),
    (0.14, 8.521, 530.3),
    (0.14, 8.521, 470.3),
    (0.14, 8.521, 410.3),
    (0.14, 8.521, 350.3),
    (0.14, 8.521, 290.3),
    (0.14, 8.521, 230.3),
    (0.14, 8.521, 170.3),
    (0.14, 8.521, 110.3),
    (0.14, 8.521, 50.3),
    (0.14, 8.521, -9.7),
    (0.14, 8.521, -69.7),
    (0.14, 8.521, -129.7),
    (0.14, 8.521, -189.7),
    (0.14, 8.521, -249.7),
    (0.14, 8.521, -309.7),
    (0.14, 8.521, -369.7),
    (0.14, 8.521, -429.7),
    (0.14, 8.521, -489.7),
    (0.14, 8.521, -549.7),
    (0.14, 8.521, -609.7),
    (0.14, 8.521, -669.7),
]))
chamfer4.Size = 0.5

doc.recompute()
